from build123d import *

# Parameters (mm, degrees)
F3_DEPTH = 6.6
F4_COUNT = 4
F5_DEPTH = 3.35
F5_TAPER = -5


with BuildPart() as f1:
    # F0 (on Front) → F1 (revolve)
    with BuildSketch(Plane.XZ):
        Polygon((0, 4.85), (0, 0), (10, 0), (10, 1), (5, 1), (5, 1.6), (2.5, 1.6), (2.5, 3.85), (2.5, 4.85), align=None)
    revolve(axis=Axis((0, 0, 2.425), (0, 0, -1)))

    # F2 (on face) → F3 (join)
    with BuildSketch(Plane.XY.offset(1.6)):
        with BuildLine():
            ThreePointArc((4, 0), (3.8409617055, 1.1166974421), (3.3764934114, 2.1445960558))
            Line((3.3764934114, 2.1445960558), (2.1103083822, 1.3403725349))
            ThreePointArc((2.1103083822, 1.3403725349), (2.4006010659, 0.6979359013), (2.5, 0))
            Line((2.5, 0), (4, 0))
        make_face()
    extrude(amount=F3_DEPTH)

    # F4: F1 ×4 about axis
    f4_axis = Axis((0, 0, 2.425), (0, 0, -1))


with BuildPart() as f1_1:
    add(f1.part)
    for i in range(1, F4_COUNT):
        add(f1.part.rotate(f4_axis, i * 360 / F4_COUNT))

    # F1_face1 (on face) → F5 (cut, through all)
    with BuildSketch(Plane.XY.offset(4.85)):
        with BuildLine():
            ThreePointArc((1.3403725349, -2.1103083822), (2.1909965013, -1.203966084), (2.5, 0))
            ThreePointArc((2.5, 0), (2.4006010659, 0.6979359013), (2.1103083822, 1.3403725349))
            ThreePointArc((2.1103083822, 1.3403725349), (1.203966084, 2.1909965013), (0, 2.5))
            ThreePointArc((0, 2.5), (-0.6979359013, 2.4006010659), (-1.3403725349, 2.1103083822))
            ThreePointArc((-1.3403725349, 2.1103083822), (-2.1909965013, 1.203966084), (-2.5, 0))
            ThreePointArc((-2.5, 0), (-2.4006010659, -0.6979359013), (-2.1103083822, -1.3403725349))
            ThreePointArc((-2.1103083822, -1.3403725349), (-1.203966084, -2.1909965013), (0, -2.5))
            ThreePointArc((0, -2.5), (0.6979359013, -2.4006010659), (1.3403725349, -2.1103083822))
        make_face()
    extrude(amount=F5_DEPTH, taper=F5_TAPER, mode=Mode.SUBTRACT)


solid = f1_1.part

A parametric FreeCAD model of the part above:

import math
import FreeCAD as App
import Part
import Sketcher
from FreeCAD import Vector
Q = App.Units.Quantity

doc = App.newDocument("Part")
body = doc.addObject("PartDesign::Body", "Body")

sketch1 = body.newObject("Sketcher::SketchObject", "Sketch")
sketch1.AttachmentSupport = (doc.getObject("XZ_Plane"), [""])
sketch1.MapMode = "FlatFace"
sketch1.addGeometry(Part.LineSegment(Vector(0, 4.8, 0), Vector(0, 0, 0)), False)
sketch1.addGeometry(Part.LineSegment(Vector(0, 0, 0), Vector(10, 0, 0)), False)
sketch1.addGeometry(Part.LineSegment(Vector(10, 0, 0), Vector(10, 1, 0)), False)
sketch1.addGeometry(Part.LineSegment(Vector(10, 1, 0), Vector(5, 1, 0)), False)
sketch1.addGeometry(Part.LineSegment(Vector(5, 1, 0), Vector(5, 1.6, 0)), False)
sketch1.addGeometry(Part.LineSegment(Vector(5, 1.6, 0), Vector(2.5, 1.6, 0)), False)
sketch1.addGeometry(Part.LineSegment(Vector(2.5, 1.6, 0), Vector(2.5, 4.8, 0)), False)
sketch1.addGeometry(Part.LineSegment(Vector(2.5, 4.8, 0), Vector(0, 4.8, 0)), False)
sketch1.addConstraint(Sketcher.Constraint("Coincident", 0, 2, 1, 1))
sketch1.addConstraint(Sketcher.Constraint("Coincident", 1, 2, 2, 1))
sketch1.addConstraint(Sketcher.Constraint("Coincident", 2, 2, 3, 1))
sketch1.addConstraint(Sketcher.Constraint("Coincident", 3, 2, 4, 1))
sketch1.addConstraint(Sketcher.Constraint("Coincident", 4, 2, 5, 1))
sketch1.addConstraint(Sketcher.Constraint("Coincident", 5, 2, 6, 1))
sketch1.addConstraint(Sketcher.Constraint("Coincident", 6, 2, 7, 1))
sketch1.addConstraint(Sketcher.Constraint("Coincident", 7, 2, 0, 1))
sketch1.addConstraint(Sketcher.Constraint("Vertical", 0))
sketch1.addConstraint(Sketcher.Constraint("Horizontal", 1))
sketch1.addConstraint(Sketcher.Constraint("Vertical", 2))
sketch1.addConstraint(Sketcher.Constraint("Horizontal", 3))
sketch1.addConstraint(Sketcher.Constraint("Vertical", 4))
sketch1.addConstraint(Sketcher.Constraint("Horizontal", 5))
sketch1.addConstraint(Sketcher.Constraint("Vertical", 6))
sketch1.addConstraint(Sketcher.Constraint("Horizontal", 7))
sketch1.addConstraint(Sketcher.Constraint("Coincident", 0, 2, -1, 1))
sketch1.addConstraint(Sketcher.Constraint("Equal", 5, 7))
sketch1.addConstraint(Sketcher.Constraint("DistanceX", 1, 1, 1, 2, Q("10 mm")))
sketch1.addConstraint(Sketcher.Constraint("DistanceX", 3, 2, 3, 1, Q("5 mm")))
sketch1.addConstraint(Sketcher.Constraint("DistanceY", 2, 1, 2, 2, Q("1 mm")))
sketch1.addConstraint(Sketcher.Constraint("DistanceY", 4, 1, 4, 2, Q("0.6 mm")))
sketch1.addConstraint(Sketcher.Constraint("DistanceY", 0, 2, 0, 1, Q("4.85 mm")))
revolution = body.newObject("PartDesign::Revolution", "Revolution")
revolution.Profile = sketch1
revolution.ReferenceAxis = (sketch1, ["V_Axis"])
revolution.Angle = 360

sketch2 = body.newObject("Sketcher::SketchObject", "Sketch001")
sketch2.AttachmentSupport = (doc.getObject("XY_Plane"), [""])
sketch2.MapMode = "FlatFace"
sketch2.AttachmentOffset = App.Placement(Vector(0, 0, 1.6), App.Rotation())
sketch2.addGeometry(Part.ArcOfCircle(Part.Circle(Vector(0, 0, 0), Vector(0, 0, 1), 4), math.radians(0), math.radians(32)), False)
sketch2.addGeometry(Part.LineSegment(Vector(3.4, 2.1, 0), Vector(2.1, 1.3, 0)), False)
sketch2.addGeometry(Part.ArcOfCircle(Part.Circle(Vector(0, 0, 0), Vector(0, 0, 1), 2.5), math.radians(0), math.radians(32)), False)
sketch2.addGeometry(Part.LineSegment(Vector(2.5, 0, 0), Vector(4, 0, 0)), False)
sketch2.addConstraint(Sketcher.Constraint("Coincident", 0, 2, 1, 1))
sketch2.addConstraint(Sketcher.Constraint("Coincident", 1, 2, 2, 2))
sketch2.addConstraint(Sketcher.Constraint("Coincident", 2, 1, 3, 1))
sketch2.addConstraint(Sketcher.Constraint("Coincident", 3, 2, 0, 1))
sketch2.addConstraint(Sketcher.Constraint("Horizontal", 3))
sketch2.addConstraint(Sketcher.Constraint("Coincident", 0, 3, -1, 1))
sketch2.addConstraint(Sketcher.Constraint("Coincident", 2, 3, -1, 1))
sketch2.addConstraint(Sketcher.Constraint("PointOnObject", 2, 1, -1))
sketch2.addConstraint(Sketcher.Constraint("Radius", 0, Q("4 mm")))
sketch2.addConstraint(Sketcher.Constraint("Radius", 2, Q("2.5 mm")))
sketch2.addConstraint(Sketcher.Constraint("DistanceX", -1, 1, 1, 2, Q("2.110308 mm")))
sketch2.addConstraint(Sketcher.Constraint("DistanceX", -1, 1, 0, 2, Q("3.376493 mm")))
pad1 = body.newObject("PartDesign::Pad", "Pad")
pad1.Profile = sketch2
pad1.Length = 6.6
body2 = doc.addObject("PartDesign::Body", "Body001")
doc.recompute()

body2.BaseFeature = body
doc.recompute()

body3 = doc.addObject("PartDesign::Body", "Body002")
body3.BaseFeature = body
body3.Placement = App.Placement(Vector(0, 0, 0), App.Rotation(Vector(0, 0, -1), 90))
boolean = body2.newObject("PartDesign::Boolean", "Boolean")
boolean.Type = "Fuse"
boolean.addObjects([body3])
doc.recompute()

body4 = doc.addObject("PartDesign::Body", "Body003")
body4.BaseFeature = body
body4.Placement = App.Placement(Vector(0, 0, 0), App.Rotation(Vector(0, 0, -1), 180))
boolean2 = body2.newObject("PartDesign::Boolean", "Boolean001")
boolean2.Type = "Fuse"
boolean2.addObjects([body4])
doc.recompute()

body.Placement = App.Placement(Vector(0, 0, 0), App.Rotation(Vector(0, 0, -1), 270))
boolean3 = body2.newObject("PartDesign::Boolean", "Boolean002")
boolean3.Type = "Fuse"
boolean3.addObjects([body])

sketch3 = body2.newObject("Sketcher::SketchObject", "Sketch002")
sketch3.AttachmentSupport = (doc.getObject("XY_Plane001"), [""])
sketch3.MapMode = "FlatFace"
sketch3.AttachmentOffset = App.Placement(Vector(0, 0, 4.85), App.Rotation())
sketch3.addGeometry(Part.ArcOfCircle(Part.Circle(Vector(0, 0, 0), Vector(0, 0, 1), 2.5), math.radians(-58), math.radians(0)), False)
sketch3.addGeometry(Part.ArcOfCircle(Part.Circle(Vector(0, 0, 0), Vector(0, 0, 1), 2.5), math.radians(0), math.radians(32)), False)
sketch3.addGeometry(Part.ArcOfCircle(Part.Circle(Vector(0, 0, 0), Vector(0, 0, 1), 2.5), math.radians(32), math.radians(90)), False)
sketch3.addGeometry(Part.ArcOfCircle(Part.Circle(Vector(0, 0, 0), Vector(0, 0, 1), 2.5), math.radians(90), math.radians(122)), False)
sketch3.addGeometry(Part.ArcOfCircle(Part.Circle(Vector(0, 0, 0), Vector(0, 0, 1), 2.5), math.radians(122), math.radians(180)), False)
sketch3.addGeometry(Part.ArcOfCircle(Part.Circle(Vector(0, 0, 0), Vector(0, 0, 1), 2.5), math.radians(180), math.radians(212)), False)
sketch3.addGeometry(Part.ArcOfCircle(Part.Circle(Vector(0, 0, 0), Vector(0, 0, 1), 2.5), math.radians(-148), math.radians(-90)), False)
sketch3.addGeometry(Part.ArcOfCircle(Part.Circle(Vector(0, 0, 0), Vector(0, 0, 1), 2.5), math.radians(-90), math.radians(-58)), False)
sketch3.addConstraint(Sketcher.Constraint("Tangent", 0, 2, 1, 1))
sketch3.addConstraint(Sketcher.Constraint("Tangent", 1, 2, 2, 1))
sketch3.addConstraint(Sketcher.Constraint("Tangent", 2, 2, 3, 1))
sketch3.addConstraint(Sketcher.Constraint("Tangent", 3, 2, 4, 1))
sketch3.addConstraint(Sketcher.Constraint("Tangent", 4, 2, 5, 1))
sketch3.addConstraint(Sketcher.Constraint("Tangent", 5, 2, 6, 1))
sketch3.addConstraint(Sketcher.Constraint("Tangent", 6, 2, 7, 1))
sketch3.addConstraint(Sketcher.Constraint("Tangent", 7, 2, 0, 1))
sketch3.addConstraint(Sketcher.Constraint("Coincident", 0, 3, -1, 1))
sketch3.addConstraint(Sketcher.Constraint("Coincident", 2, 3, -1, 1))
sketch3.addConstraint(Sketcher.Constraint("Coincident", 4, 3, -1, 1))
sketch3.addConstraint(Sketcher.Constraint("Equal", 4, 5))
sketch3.addConstraint(Sketcher.Constraint("PointOnObject", 0, 2, -1))
sketch3.addConstraint(Sketcher.Constraint("PointOnObject", 2, 2, -2))
sketch3.addConstraint(Sketcher.Constraint("PointOnObject", 4, 2, -1))
sketch3.addConstraint(Sketcher.Constraint("PointOnObject", 6, 2, -2))
sketch3.addConstraint(Sketcher.Constraint("Radius", 0, Q("2.5 mm")))
sketch3.addConstraint(Sketcher.Constraint("DistanceX", -1, 1, 1, 2, Q("2.110308 mm")))
sketch3.addConstraint(Sketcher.Constraint("DistanceY", -1, 1, 3, 2, Q("2.110308 mm")))
sketch3.addConstraint(Sketcher.Constraint("DistanceX", 5, 2, -1, 1, Q("2.110308 mm")))
sketch3.addConstraint(Sketcher.Constraint("DistanceY", 7, 2, -1, 1, Q("2.110308 mm")))
pocket1 = body2.newObject("PartDesign::Pocket", "Pocket")
pocket1.Profile = sketch3
pocket1.Type = "ThroughAll"
pocket1.Reversed = True
pocket1.TaperAngle = 5

doc.recompute()
